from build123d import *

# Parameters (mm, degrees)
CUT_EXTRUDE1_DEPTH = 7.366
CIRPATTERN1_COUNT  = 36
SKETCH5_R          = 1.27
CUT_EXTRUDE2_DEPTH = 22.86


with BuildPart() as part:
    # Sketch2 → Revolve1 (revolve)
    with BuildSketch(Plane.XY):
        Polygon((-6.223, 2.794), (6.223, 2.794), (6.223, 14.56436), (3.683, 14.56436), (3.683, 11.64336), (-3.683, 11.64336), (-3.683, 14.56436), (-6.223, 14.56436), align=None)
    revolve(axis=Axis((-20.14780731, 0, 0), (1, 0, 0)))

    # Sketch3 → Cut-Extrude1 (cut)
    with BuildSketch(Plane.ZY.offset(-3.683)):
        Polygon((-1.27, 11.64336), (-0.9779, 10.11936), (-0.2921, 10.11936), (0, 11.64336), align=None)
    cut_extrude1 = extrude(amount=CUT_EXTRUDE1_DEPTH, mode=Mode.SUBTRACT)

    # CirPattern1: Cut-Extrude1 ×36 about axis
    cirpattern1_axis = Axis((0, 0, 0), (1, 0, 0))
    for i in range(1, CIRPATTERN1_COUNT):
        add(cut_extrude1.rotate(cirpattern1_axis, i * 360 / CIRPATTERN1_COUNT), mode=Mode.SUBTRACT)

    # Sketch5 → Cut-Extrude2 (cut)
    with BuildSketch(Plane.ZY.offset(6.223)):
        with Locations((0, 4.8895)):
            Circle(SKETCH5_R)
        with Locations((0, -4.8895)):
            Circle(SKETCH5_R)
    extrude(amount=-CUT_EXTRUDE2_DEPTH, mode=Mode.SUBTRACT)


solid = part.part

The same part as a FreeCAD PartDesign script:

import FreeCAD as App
import Part
import Sketcher
Q = App.Units.Quantity


def add_polygon(sketch, points):
    """Adds a closed chain of lines whose ends are joined by coincident constraints."""
    first, n = sketch.GeometryCount, len(points)
    for a, b in zip(points, points[1:] + points[:1]):
        sketch.addGeometry(Part.LineSegment(App.Vector(*a, 0), App.Vector(*b, 0)), False)
    for i in range(n):
        sketch.addConstraint(Sketcher.Constraint("Coincident", first + i, 2, first + (i + 1) % n, 1))

doc = App.newDocument("Part")
body = doc.addObject("PartDesign::Body", "Body")

# Sketch on XY plane
sketch1 = body.newObject("Sketcher::SketchObject", "Sketch")
sketch1.AttachmentSupport = (doc.getObject("XY_Plane"), [""])
sketch1.MapMode = "FlatFace"
add_polygon(sketch1, [(-6.223, 2.794), (6.223, 2.794), (6.223, 14.56436), (3.683, 14.56436), (3.683, 11.64336), (-3.683, 11.64336), (-3.683, 14.56436), (-6.223, 14.56436)])  # lines 0-7
sketch1.addConstraint([
    Sketcher.Constraint("Horizontal", 0),
    Sketcher.Constraint("Vertical", 1),
    Sketcher.Constraint("Horizontal", 2),
    Sketcher.Constraint("Vertical", 3),
    Sketcher.Constraint("Horizontal", 4),
    Sketcher.Constraint("Vertical", 5),
    Sketcher.Constraint("Horizontal", 6),
    Sketcher.Constraint("Vertical", 7),
    Sketcher.Constraint("Symmetric", 2, 2, 5, 2, -2),
    Sketcher.Constraint("Equal", 2, 6),
    Sketcher.Constraint("DistanceX", 2, 2, 2, 1, Q("0.1 in")),
    Sketcher.Constraint("DistanceX", 0, 1, 0, 2, Q("0.49 in")),
    Sketcher.Constraint("DistanceY", 3, 2, 3, 1, Q("0.115 in")),
    Sketcher.Constraint("DistanceY", -1, 1, 0, 2, Q("0.11 in")),
    Sketcher.Constraint("DistanceY", 1, 1, 1, 2, Q("0.4634 in")),
])
revolution = body.newObject("PartDesign::Revolution", "Revolution")
revolution.Profile = sketch1
revolution.ReferenceAxis = (sketch1, ["H_Axis"])
revolution.Angle = 360

# Sketch on YZ plane
sketch2 = body.newObject("Sketcher::SketchObject", "Sketch001")
sketch2.AttachmentSupport = (doc.getObject("YZ_Plane"), [""])
sketch2.MapMode = "FlatFace"
sketch2.AttachmentOffset = App.Placement(App.Vector(0, 0, 0.145 * 25.4), App.Rotation())
add_polygon(sketch2, [(11.64336, -1.27), (10.11936, -0.9779), (10.11936, -0.2921), (11.64336, 0)])  # lines 0-3
sketch2.addConstraint([
    Sketcher.Constraint("Vertical", 1),
    Sketcher.Constraint("Vertical", 3),
    Sketcher.Constraint("PointOnObject", 2, 2, -1),
    Sketcher.Constraint("Equal", 0, 2),
    Sketcher.Constraint("DistanceY", 3, 2, 3, 1, Q("0.05 in")),
    Sketcher.Constraint("DistanceY", 1, 1, 1, 2, Q("0.027 in")),
    Sketcher.Constraint("DistanceX", 1, 2, 2, 2, Q("0.06 in")),
    Sketcher.Constraint("DistanceX", -1, 1, 0, 2, Q("0.3984 in")),
])
pocket1 = body.newObject("PartDesign::Pocket", "Pocket")
pocket1.Profile = sketch2
pocket1.Length = Q("0.29 in")
doc.recompute()

polarpattern = body.newObject("PartDesign::PolarPattern", "PolarPattern")
polarpattern.Originals = [pocket1]
polarpattern.Axis = (doc.getObject("X_Axis"), [""])
polarpattern.Angle = 360
polarpattern.Occurrences = 36
body.Tip = polarpattern

# Sketch on YZ plane
sketch3 = body.newObject("Sketcher::SketchObject", "Sketch002")
sketch3.AttachmentSupport = (doc.getObject("YZ_Plane"), [""])
sketch3.MapMode = "FlatFace"
sketch3.AttachmentOffset = App.Placement(App.Vector(0, 0, -0.245 * 25.4), App.Rotation())
sketch3.addGeometry([
    Part.Circle(App.Vector(4.8895, 0, 0), App.Vector(0, 0, 1), 1.27),
    Part.Circle(App.Vector(-4.8895, 0, 0), App.Vector(0, 0, 1), 1.27),
], False)
sketch3.addConstraint([
    Sketcher.Constraint("Equal", 0, 1),
    Sketcher.Constraint("Symmetric", 0, 3, 1, 3, -1, 1),
    Sketcher.Constraint("PointOnObject", 0, 3, -1),
    Sketcher.Constraint("Diameter", 0, Q("0.1 in")),
    Sketcher.Constraint("DistanceX", 1, 3, 0, 3, Q("0.385 in")),
])
pocket2 = body.newObject("PartDesign::Pocket", "Pocket001")
pocket2.Profile = sketch3
pocket2.Length = Q("0.9 in")
pocket2.Reversed = True

doc.recompute()
